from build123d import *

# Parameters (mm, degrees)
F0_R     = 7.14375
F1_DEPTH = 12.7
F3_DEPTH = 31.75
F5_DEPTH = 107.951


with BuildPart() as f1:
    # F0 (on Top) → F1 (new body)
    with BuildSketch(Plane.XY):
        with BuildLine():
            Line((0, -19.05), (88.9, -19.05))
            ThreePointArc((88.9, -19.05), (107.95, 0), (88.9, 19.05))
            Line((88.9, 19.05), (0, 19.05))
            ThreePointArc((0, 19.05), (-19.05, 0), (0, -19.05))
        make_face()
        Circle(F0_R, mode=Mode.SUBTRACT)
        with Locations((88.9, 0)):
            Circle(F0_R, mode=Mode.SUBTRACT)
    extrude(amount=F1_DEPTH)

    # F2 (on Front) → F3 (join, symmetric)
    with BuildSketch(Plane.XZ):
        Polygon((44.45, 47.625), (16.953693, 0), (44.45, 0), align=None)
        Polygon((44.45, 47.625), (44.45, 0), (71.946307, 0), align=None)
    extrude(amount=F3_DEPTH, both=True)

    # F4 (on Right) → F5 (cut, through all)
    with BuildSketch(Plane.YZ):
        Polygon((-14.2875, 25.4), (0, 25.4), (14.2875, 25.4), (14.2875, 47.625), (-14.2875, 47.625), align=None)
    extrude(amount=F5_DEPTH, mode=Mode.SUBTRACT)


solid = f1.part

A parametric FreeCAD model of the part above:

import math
import FreeCAD as App
import Part
import Sketcher
from FreeCAD import Vector
Q = App.Units.Quantity

doc = App.newDocument("Part")
body = doc.addObject("PartDesign::Body", "Body")

sketch1 = body.newObject("Sketcher::SketchObject", "Sketch")
sketch1.AttachmentSupport = (doc.getObject("XY_Plane"), [""])
sketch1.MapMode = "FlatFace"
sketch1.addGeometry([
    Part.LineSegment(Vector(0, -19.05, 0), Vector(88.9, -19.05, 0)),
    Part.ArcOfCircle(Part.Circle(Vector(88.9, 0, 0), Vector(0, 0, 1), 19.05), math.radians(-90), math.radians(90)),
    Part.LineSegment(Vector(88.9, 19.05, 0), Vector(0, 19.05, 0)),
    Part.ArcOfCircle(Part.Circle(Vector(0, 0, 0), Vector(0, 0, 1), 19.05), math.radians(90), math.radians(270)),
    Part.Circle(Vector(0, 0, 0), Vector(0, 0, 1), 7.14375),
    Part.Circle(Vector(88.9, 0, 0), Vector(0, 0, 1), 7.14375),
], False)
sketch1.addConstraint([
    Sketcher.Constraint("Tangent", 0, 2, 1, 1),
    Sketcher.Constraint("Tangent", 1, 2, 2, 1),
    Sketcher.Constraint("Tangent", 2, 2, 3, 1),
    Sketcher.Constraint("Tangent", 3, 2, 0, 1),
    Sketcher.Constraint("Horizontal", 0),
    Sketcher.Constraint("Horizontal", 2),
    Sketcher.Constraint("Coincident", 3, 3, -1, 1),
    Sketcher.Constraint("Coincident", 4, 3, -1, 1),
    Sketcher.Constraint("Coincident", 5, 3, 1, 3),
    Sketcher.Constraint("Equal", 4, 5),
    Sketcher.Constraint("Radius", 1, Q("0.75 in")),
    Sketcher.Constraint("Diameter", 4, Q("0.5625 in")),
    Sketcher.Constraint("DistanceX", 0, 1, 0, 2, Q("3.5 in")),
])
pad1 = body.newObject("PartDesign::Pad", "Pad")
pad1.Profile = sketch1
pad1.Length = Q("0.5 in")

sketch2 = body.newObject("Sketcher::SketchObject", "Sketch001")
sketch2.AttachmentSupport = (doc.getObject("XZ_Plane"), [""])
sketch2.MapMode = "FlatFace"
sketch2.addGeometry([
    Part.LineSegment(Vector(44.45, 47.625, 0), Vector(16.953693, 0, 0)),
    Part.LineSegment(Vector(16.953693, 0, 0), Vector(71.946307, 0, 0)),
    Part.LineSegment(Vector(71.946307, 0, 0), Vector(44.45, 47.625, 0)),
], False)
sketch2.addConstraint([
    Sketcher.Constraint("Coincident", 0, 2, 1, 1),
    Sketcher.Constraint("Coincident", 1, 2, 2, 1),
    Sketcher.Constraint("Coincident", 2, 2, 0, 1),
    Sketcher.Constraint("Horizontal", 1),
    Sketcher.Constraint("PointOnObject", 0, 2, -1),
    Sketcher.Constraint("Equal", 0, 2),
    Sketcher.Constraint("Angle", 0, Q("-120 deg")),
    Sketcher.Constraint("DistanceX", -1, 1, 2, 2, Q("1.75 in")),
    Sketcher.Constraint("DistanceY", -1, 1, 2, 2, Q("1.875 in")),
])
pad2 = body.newObject("PartDesign::Pad", "Pad001")
pad2.Profile = sketch2
pad2.Length = Q("2.5 in")
pad2.Midplane = True

sketch3 = body.newObject("Sketcher::SketchObject", "Sketch002")
sketch3.AttachmentSupport = (doc.getObject("YZ_Plane"), [""])
sketch3.MapMode = "FlatFace"
sketch3.addGeometry([
    Part.LineSegment(Vector(-14.2875, 25.4, 0), Vector(14.2875, 25.4, 0)),
    Part.LineSegment(Vector(14.2875, 25.4, 0), Vector(14.2875, 47.625, 0)),
    Part.LineSegment(Vector(14.2875, 47.625, 0), Vector(-14.2875, 47.625, 0)),
    Part.LineSegment(Vector(-14.2875, 47.625, 0), Vector(-14.2875, 25.4, 0)),
], False)
sketch3.addConstraint([
    Sketcher.Constraint("Coincident", 0, 2, 1, 1),
    Sketcher.Constraint("Coincident", 1, 2, 2, 1),
    Sketcher.Constraint("Coincident", 2, 2, 3, 1),
    Sketcher.Constraint("Coincident", 3, 2, 0, 1),
    Sketcher.Constraint("Horizontal", 0),
    Sketcher.Constraint("Vertical", 1),
    Sketcher.Constraint("Horizontal", 2),
    Sketcher.Constraint("Vertical", 3),
    Sketcher.Constraint("DistanceY", -1, 1, 0, 2, Q("1 in")),
    Sketcher.Constraint("DistanceX", 0, 1, 0, 2, Q("1.125 in")),
    Sketcher.Constraint("DistanceY", 1, 1, 1, 2, Q("0.875 in")),
    Sketcher.Constraint("DistanceX", -1, 1, 0, 2, Q("0.5625 in")),
])
pocket1 = body.newObject("PartDesign::Pocket", "Pocket")
pocket1.Profile = sketch3
pocket1.Type = "ThroughAll"
pocket1.Reversed = True

doc.recompute()
